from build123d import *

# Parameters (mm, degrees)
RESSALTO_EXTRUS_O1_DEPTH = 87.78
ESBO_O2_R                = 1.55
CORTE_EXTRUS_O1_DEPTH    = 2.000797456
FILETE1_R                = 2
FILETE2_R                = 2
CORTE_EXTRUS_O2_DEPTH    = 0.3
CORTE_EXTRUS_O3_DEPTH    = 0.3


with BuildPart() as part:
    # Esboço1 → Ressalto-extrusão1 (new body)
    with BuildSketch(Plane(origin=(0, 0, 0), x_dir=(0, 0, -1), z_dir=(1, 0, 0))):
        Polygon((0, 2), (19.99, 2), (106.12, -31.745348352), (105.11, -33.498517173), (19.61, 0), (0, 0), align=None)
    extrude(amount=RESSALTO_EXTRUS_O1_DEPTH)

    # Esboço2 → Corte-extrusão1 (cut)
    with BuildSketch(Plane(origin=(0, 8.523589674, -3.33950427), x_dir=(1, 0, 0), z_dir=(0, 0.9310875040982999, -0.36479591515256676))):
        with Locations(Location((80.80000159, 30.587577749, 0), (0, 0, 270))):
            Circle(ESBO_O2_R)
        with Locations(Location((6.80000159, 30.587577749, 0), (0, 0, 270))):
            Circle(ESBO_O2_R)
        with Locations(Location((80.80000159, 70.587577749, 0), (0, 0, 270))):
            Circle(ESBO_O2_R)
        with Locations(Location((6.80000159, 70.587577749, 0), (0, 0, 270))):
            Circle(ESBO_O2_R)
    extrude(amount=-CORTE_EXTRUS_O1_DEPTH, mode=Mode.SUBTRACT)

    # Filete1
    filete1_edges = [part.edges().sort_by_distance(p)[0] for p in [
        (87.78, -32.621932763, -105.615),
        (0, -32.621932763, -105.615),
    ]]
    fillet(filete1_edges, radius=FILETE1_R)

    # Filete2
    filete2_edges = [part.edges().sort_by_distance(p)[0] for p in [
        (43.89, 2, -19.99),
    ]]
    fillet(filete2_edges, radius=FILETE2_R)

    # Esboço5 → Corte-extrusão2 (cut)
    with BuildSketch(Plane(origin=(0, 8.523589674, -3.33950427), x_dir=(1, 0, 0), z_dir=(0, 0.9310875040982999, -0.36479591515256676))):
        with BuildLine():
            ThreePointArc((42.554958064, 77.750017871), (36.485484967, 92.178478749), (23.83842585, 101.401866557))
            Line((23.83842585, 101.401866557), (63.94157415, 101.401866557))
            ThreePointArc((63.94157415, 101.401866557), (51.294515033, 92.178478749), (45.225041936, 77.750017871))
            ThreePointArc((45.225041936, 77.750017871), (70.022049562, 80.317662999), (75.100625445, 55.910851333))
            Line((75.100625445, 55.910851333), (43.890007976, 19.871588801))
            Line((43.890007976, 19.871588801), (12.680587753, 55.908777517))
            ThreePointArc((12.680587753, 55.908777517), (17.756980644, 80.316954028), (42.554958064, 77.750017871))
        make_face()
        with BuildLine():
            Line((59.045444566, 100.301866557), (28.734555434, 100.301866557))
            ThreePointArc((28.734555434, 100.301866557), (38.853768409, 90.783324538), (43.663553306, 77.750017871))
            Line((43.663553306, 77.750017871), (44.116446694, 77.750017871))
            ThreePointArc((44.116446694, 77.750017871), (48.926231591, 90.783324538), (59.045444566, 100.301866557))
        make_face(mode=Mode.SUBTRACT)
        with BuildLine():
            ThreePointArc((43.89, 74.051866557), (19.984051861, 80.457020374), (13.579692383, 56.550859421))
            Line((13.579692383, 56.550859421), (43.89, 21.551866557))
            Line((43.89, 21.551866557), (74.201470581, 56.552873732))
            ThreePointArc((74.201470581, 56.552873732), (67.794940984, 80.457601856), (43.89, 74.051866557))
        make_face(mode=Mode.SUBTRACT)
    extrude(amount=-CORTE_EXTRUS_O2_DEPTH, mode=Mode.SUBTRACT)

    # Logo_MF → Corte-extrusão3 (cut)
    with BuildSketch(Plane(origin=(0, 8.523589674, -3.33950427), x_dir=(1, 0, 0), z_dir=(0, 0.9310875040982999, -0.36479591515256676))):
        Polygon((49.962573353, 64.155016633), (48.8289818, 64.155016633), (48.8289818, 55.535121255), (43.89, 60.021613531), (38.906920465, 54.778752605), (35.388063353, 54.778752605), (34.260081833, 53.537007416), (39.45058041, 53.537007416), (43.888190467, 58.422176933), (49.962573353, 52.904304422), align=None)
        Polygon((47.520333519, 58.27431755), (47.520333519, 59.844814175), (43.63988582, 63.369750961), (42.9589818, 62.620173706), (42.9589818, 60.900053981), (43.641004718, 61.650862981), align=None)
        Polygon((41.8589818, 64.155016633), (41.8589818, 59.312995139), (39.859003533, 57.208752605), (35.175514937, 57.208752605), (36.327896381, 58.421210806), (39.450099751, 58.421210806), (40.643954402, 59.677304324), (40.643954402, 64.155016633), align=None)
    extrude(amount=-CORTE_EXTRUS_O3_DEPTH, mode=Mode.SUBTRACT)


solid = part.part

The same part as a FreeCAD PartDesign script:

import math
import FreeCAD as App
import Part
import Sketcher
from FreeCAD import Vector


def edges_at(feature, points):
    """Names of the edges that pass closest to the given points."""
    edges = feature.Shape.Edges
    near = lambda p: min(range(len(edges)), key=lambda i: edges[i].distToShape(Part.Vertex(*p))[0])
    return sorted({f"Edge{near(p) + 1}" for p in points})

doc = App.newDocument("Part")
body = doc.addObject("PartDesign::Body", "Body")

sketch1 = body.newObject("Sketcher::SketchObject", "Sketch")
sketch1.AttachmentSupport = (doc.getObject("YZ_Plane"), [""])
sketch1.MapMode = "FlatFace"
sketch1.addGeometry([
    Part.LineSegment(Vector(2, -19.99, 0), Vector(2, 0, 0)),
    Part.LineSegment(Vector(2, 0, 0), Vector(0, 0, 0)),
    Part.LineSegment(Vector(0, 0, 0), Vector(0, -19.61, 0)),
    Part.LineSegment(Vector(0, -19.61, 0), Vector(-33.498517, -105.11, 0)),
    Part.LineSegment(Vector(-33.498517, -105.11, 0), Vector(-31.745348, -106.12, 0)),
    Part.LineSegment(Vector(-31.745348, -106.12, 0), Vector(2, -19.99, 0)),
], False)
sketch1.addConstraint([
    Sketcher.Constraint("Coincident", 0, 2, 1, 1),
    Sketcher.Constraint("Coincident", 1, 2, 2, 1),
    Sketcher.Constraint("Coincident", 2, 2, 3, 1),
    Sketcher.Constraint("Coincident", 3, 2, 4, 1),
    Sketcher.Constraint("Coincident", 4, 2, 5, 1),
    Sketcher.Constraint("Coincident", 5, 2, 0, 1),
    Sketcher.Constraint("Vertical", 0),
    Sketcher.Constraint("Horizontal", 1),
    Sketcher.Constraint("Vertical", 2),
    Sketcher.Constraint("Coincident", 1, 2, -1, 1),
    Sketcher.Constraint("Parallel", 3, 5),
    Sketcher.Constraint("DistanceX", 1, 2, 1, 1, 2.0),
    Sketcher.Constraint("DistanceY", 0, 1, 0, 2, 19.99),
    Sketcher.Constraint("DistanceY", 2, 2, 2, 1, 19.61),
    Sketcher.Constraint("DistanceY", 3, 2, 2, 2, 85.5),
    Sketcher.Constraint("DistanceY", 4, 2, -1, 1, 106.12),
    Sketcher.Constraint("Distance", 4, 2.02329),
])
pad1 = body.newObject("PartDesign::Pad", "Pad")
pad1.Profile = sketch1
pad1.Length = 87.78

sketch2 = body.newObject("Sketcher::SketchObject", "Sketch001")
sketch2.Placement = App.Placement(Vector(0, 8.52359, -3.339504), App.Rotation(Vector(1, 0, 0), Vector(0, -0.364795915, -0.931087504), Vector(0, 0.931087504, -0.364795915), "ZXY"))
sketch2.addGeometry([
    Part.Circle(Vector(80.8, 30.6, 0), Vector(0, 0, 1), 1.6),
    Part.Circle(Vector(6.8, 30.6, 0), Vector(0, 0, 1), 1.6),
    Part.Circle(Vector(80.8, 70.6, 0), Vector(0, 0, 1), 1.6),
    Part.Circle(Vector(6.8, 70.6, 0), Vector(0, 0, 1), 1.6),
], False)
sketch2.addConstraint([
    Sketcher.Constraint("Equal", 0, 1),
    Sketcher.Constraint("Equal", 1, 2),
    Sketcher.Constraint("Equal", 2, 3),
    Sketcher.Constraint("Horizontal", 0, 3, 1, 3),
    Sketcher.Constraint("Horizontal", 2, 3, 3, 3),
    Sketcher.Constraint("Vertical", 0, 3, 2, 3),
    Sketcher.Constraint("Vertical", 1, 3, 3, 3),
    Sketcher.Constraint("Diameter", 0, 3.1),
    Sketcher.Constraint("DistanceX", 1, 3, 0, 3, 74.0),
    Sketcher.Constraint("DistanceY", 0, 3, 2, 3, 40.0),
    Sketcher.Constraint("DistanceX", -1, 1, 0, 3, 80.800002),
    Sketcher.Constraint("DistanceY", -1, 1, 0, 3, 30.587578),
])
pocket1 = body.newObject("PartDesign::Pocket", "Pocket")
pocket1.Profile = sketch2
pocket1.Length = 2.000797
doc.recompute()

fillet = body.newObject("PartDesign::Fillet", "Fillet")
fillet.Base = (pocket1, edges_at(pocket1, [(87.78, -32.622, -105.615), (0, -32.622, -105.615)]))
fillet.Radius = 2
doc.recompute()

fillet2 = body.newObject("PartDesign::Fillet", "Fillet001")
fillet2.Base = (fillet, edges_at(fillet, [(43.89, 2, -19.99)]))
fillet2.Radius = 2

sketch3 = body.newObject("Sketcher::SketchObject", "Sketch002")
sketch3.Placement = App.Placement(Vector(0, 8.52359, -3.339504), App.Rotation(Vector(1, 0, 0), Vector(0, -0.364795915, -0.931087504), Vector(0, 0.931087504, -0.364795915), "ZXY"))
sketch3.addGeometry([
    Part.ArcOfCircle(Part.Circle(Vector(13.58, 74.05, 0), Vector(0, 0, 1), 29.21), math.radians(7), math.radians(69)),
    Part.ArcOfCircle(Part.Circle(Vector(28.73, 65.3, 0), Vector(0, 0, 1), 18.6), math.radians(42), math.radians(210)),
    Part.LineSegment(Vector(12.68, 55.91, 0), Vector(43.89, 19.87, 0)),
    Part.LineSegment(Vector(43.89, 19.87, 0), Vector(75.1, 55.91, 0)),
    Part.ArcOfCircle(Part.Circle(Vector(59.05, 65.3, 0), Vector(0, 0, 1), 18.6), math.radians(-30), math.radians(138)),
    Part.ArcOfCircle(Part.Circle(Vector(74.2, 74.05, 0), Vector(0, 0, 1), 29.21), math.radians(111), math.radians(173)),
    Part.LineSegment(Vector(63.94, 101.4, 0), Vector(23.84, 101.4, 0)),
    Part.ArcOfCircle(Part.Circle(Vector(59.05, 65.3, 0), Vector(0, 0, 1), 17.5), math.radians(-30), math.radians(150)),
    Part.LineSegment(Vector(74.2, 56.55, 0), Vector(43.89, 21.55, 0)),
    Part.LineSegment(Vector(43.89, 21.55, 0), Vector(13.58, 56.55, 0)),
    Part.ArcOfCircle(Part.Circle(Vector(28.73, 65.3, 0), Vector(0, 0, 1), 17.5), math.radians(30), math.radians(210)),
    Part.ArcOfCircle(Part.Circle(Vector(74.2, 74.05, 0), Vector(0, 0, 1), 30.31), math.radians(120), math.radians(173)),
    Part.LineSegment(Vector(44.12, 77.75, 0), Vector(43.66, 77.75, 0)),
    Part.ArcOfCircle(Part.Circle(Vector(13.58, 74.05, 0), Vector(0, 0, 1), 30.31), math.radians(7), math.radians(60)),
    Part.LineSegment(Vector(28.73, 100.3, 0), Vector(59.05, 100.3, 0)),
], False)
sketch3.addConstraint([
    Sketcher.Constraint("Coincident", 0, 1, 1, 1),
    Sketcher.Constraint("Coincident", 1, 2, 2, 1),
    Sketcher.Constraint("Coincident", 2, 2, 3, 1),
    Sketcher.Constraint("Coincident", 3, 2, 4, 1),
    Sketcher.Constraint("Coincident", 4, 2, 5, 2),
    Sketcher.Constraint("Coincident", 5, 1, 6, 1),
    Sketcher.Constraint("Coincident", 6, 2, 0, 2),
    Sketcher.Constraint("Coincident", 7, 1, 8, 1),
    Sketcher.Constraint("Coincident", 8, 2, 9, 1),
    Sketcher.Constraint("Coincident", 9, 2, 10, 2),
    Sketcher.Constraint("Coincident", 10, 1, 7, 2),
    Sketcher.Constraint("Coincident", 11, 2, 12, 1),
    Sketcher.Constraint("Coincident", 12, 2, 13, 1),
    Sketcher.Constraint("Coincident", 13, 2, 14, 1),
    Sketcher.Constraint("Coincident", 14, 2, 11, 1),
    Sketcher.Constraint("Horizontal", 6),
    Sketcher.Constraint("Horizontal", 12),
    Sketcher.Constraint("Horizontal", 14),
    Sketcher.Constraint("Coincident", 7, 3, 4, 3),
    Sketcher.Constraint("Coincident", 10, 3, 1, 3),
    Sketcher.Constraint("Coincident", 11, 3, 5, 3),
    Sketcher.Constraint("Coincident", 13, 3, 0, 3),
    Sketcher.Constraint("Equal", 1, 4),
    Sketcher.Constraint("Equal", 0, 5),
    Sketcher.Constraint("Equal", 7, 10),
    Sketcher.Constraint("Equal", 11, 13),
    Sketcher.Constraint("Parallel", 3, 8),
    Sketcher.Constraint("Parallel", 2, 9),
    Sketcher.Constraint("Horizontal", 1, 3, 4, 3),
    Sketcher.Constraint("Horizontal", 0, 3, 5, 3),
    Sketcher.Constraint("Horizontal", 0, 1, 4, 2),
    Sketcher.Constraint("Horizontal", 13, 3, 10, 1),
    Sketcher.Constraint("Horizontal", 4, 2, 11, 2),
    Sketcher.Constraint("Vertical", 8, 2, 10, 1),
    Sketcher.Constraint("Vertical", 10, 3, 13, 2),
    Sketcher.Constraint("Radius", 1, 18.6),
    Sketcher.Constraint("Radius", 7, 17.5),
    Sketcher.Constraint("DistanceY", 4, 3, 5, 1, 36.1),
    Sketcher.Constraint("DistanceY", 13, 2, 6, 2, 1.1),
    Sketcher.Constraint("DistanceX", -1, 1, 8, 2, 43.89),
    Sketcher.Constraint("Radius", 0, 29.210889),
    Sketcher.Constraint("Radius", 11, 30.310889),
    Sketcher.Constraint("DistanceY", 1, 3, 0, 3, 8.75),
    Sketcher.Constraint("DistanceY", 8, 2, 10, 3, 43.75),
    Sketcher.Constraint("Distance", 8, 46.30179),
    Sketcher.Constraint("DistanceY", -1, 1, 2, 2, 19.871589),
    Sketcher.Constraint("DistanceY", -1, 1, 3, 2, 55.910851),
    Sketcher.Constraint("DistanceY", -1, 1, 9, 2, 56.550859),
    Sketcher.Constraint("DistanceY", 1, 2, 13, 3, 18.143089),
])
pocket2 = body.newObject("PartDesign::Pocket", "Pocket001")
pocket2.Profile = sketch3
pocket2.Length = 0.3

sketch4 = body.newObject("Sketcher::SketchObject", "Sketch003")
sketch4.Placement = App.Placement(Vector(0, 8.52359, -3.339504), App.Rotation(Vector(1, 0, 0), Vector(0, -0.364795915, -0.931087504), Vector(0, 0.931087504, -0.364795915), "ZXY"))
sketch4.addGeometry([
    Part.LineSegment(Vector(49.962573, 64.155017, 0), Vector(48.828982, 64.155017, 0)),
    Part.LineSegment(Vector(48.828982, 64.155017, 0), Vector(48.828982, 55.535121, 0)),
    Part.LineSegment(Vector(48.828982, 55.535121, 0), Vector(43.89, 60.021614, 0)),
    Part.LineSegment(Vector(43.89, 60.021614, 0), Vector(38.90692, 54.778753, 0)),
    Part.LineSegment(Vector(38.90692, 54.778753, 0), Vector(35.388063, 54.778753, 0)),
    Part.LineSegment(Vector(35.388063, 54.778753, 0), Vector(34.260082, 53.537007, 0)),
    Part.LineSegment(Vector(34.260082, 53.537007, 0), Vector(39.45058, 53.537007, 0)),
    Part.LineSegment(Vector(39.45058, 53.537007, 0), Vector(43.88819, 58.422177, 0)),
    Part.LineSegment(Vector(43.88819, 58.422177, 0), Vector(49.962573, 52.904304, 0)),
    Part.LineSegment(Vector(49.962573, 52.904304, 0), Vector(49.962573, 64.155017, 0)),
    Part.LineSegment(Vector(47.520334, 58.274318, 0), Vector(47.520334, 59.844814, 0)),
    Part.LineSegment(Vector(47.520334, 59.844814, 0), Vector(43.639886, 63.369751, 0)),
    Part.LineSegment(Vector(43.639886, 63.369751, 0), Vector(42.958982, 62.620174, 0)),
    Part.LineSegment(Vector(42.958982, 62.620174, 0), Vector(42.958982, 60.900054, 0)),
    Part.LineSegment(Vector(42.958982, 60.900054, 0), Vector(43.641005, 61.650863, 0)),
    Part.LineSegment(Vector(43.641005, 61.650863, 0), Vector(47.520334, 58.274318, 0)),
    Part.LineSegment(Vector(41.858982, 59.312995, 0), Vector(41.858982, 64.155017, 0)),
    Part.LineSegment(Vector(41.858982, 64.155017, 0), Vector(40.643954, 64.155017, 0)),
    Part.LineSegment(Vector(40.643954, 64.155017, 0), Vector(40.643954, 59.677304, 0)),
    Part.LineSegment(Vector(40.643954, 59.677304, 0), Vector(39.4501, 58.421211, 0)),
    Part.LineSegment(Vector(39.4501, 58.421211, 0), Vector(36.327896, 58.421211, 0)),
    Part.LineSegment(Vector(36.327896, 58.421211, 0), Vector(35.175515, 57.208753, 0)),
    Part.LineSegment(Vector(35.175515, 57.208753, 0), Vector(39.859004, 57.208753, 0)),
    Part.LineSegment(Vector(39.859004, 57.208753, 0), Vector(41.858982, 59.312995, 0)),
], False)
sketch4.addConstraint([
    Sketcher.Constraint("Coincident", 0, 2, 1, 1),
    Sketcher.Constraint("Coincident", 1, 2, 2, 1),
    Sketcher.Constraint("Coincident", 2, 2, 3, 1),
    Sketcher.Constraint("Coincident", 3, 2, 4, 1),
    Sketcher.Constraint("Coincident", 4, 2, 5, 1),
    Sketcher.Constraint("Coincident", 5, 2, 6, 1),
    Sketcher.Constraint("Coincident", 6, 2, 7, 1),
    Sketcher.Constraint("Coincident", 7, 2, 8, 1),
    Sketcher.Constraint("Coincident", 8, 2, 9, 1),
    Sketcher.Constraint("Coincident", 9, 2, 0, 1),
    Sketcher.Constraint("Coincident", 10, 2, 11, 1),
    Sketcher.Constraint("Coincident", 11, 2, 12, 1),
    Sketcher.Constraint("Coincident", 12, 2, 13, 1),
    Sketcher.Constraint("Coincident", 13, 2, 14, 1),
    Sketcher.Constraint("Coincident", 14, 2, 15, 1),
    Sketcher.Constraint("Coincident", 15, 2, 10, 1),
    Sketcher.Constraint("Coincident", 16, 2, 17, 1),
    Sketcher.Constraint("Coincident", 17, 2, 18, 1),
    Sketcher.Constraint("Coincident", 18, 2, 19, 1),
    Sketcher.Constraint("Coincident", 19, 2, 20, 1),
    Sketcher.Constraint("Coincident", 20, 2, 21, 1),
    Sketcher.Constraint("Coincident", 21, 2, 22, 1),
    Sketcher.Constraint("Coincident", 22, 2, 23, 1),
    Sketcher.Constraint("Coincident", 23, 2, 16, 1),
    Sketcher.Constraint("Horizontal", 0),
    Sketcher.Constraint("Vertical", 1),
    Sketcher.Constraint("Horizontal", 4),
    Sketcher.Constraint("Horizontal", 6),
    Sketcher.Constraint("Vertical", 9),
    Sketcher.Constraint("Vertical", 10),
    Sketcher.Constraint("Vertical", 13),
    Sketcher.Constraint("Vertical", 16),
    Sketcher.Constraint("Horizontal", 17),
    Sketcher.Constraint("Vertical", 18),
    Sketcher.Constraint("Horizontal", 20),
    Sketcher.Constraint("Horizontal", 22),
    Sketcher.Constraint("DistanceX", 16, 2, 12, 2, 1.1),
    Sketcher.Constraint("DistanceX", -1, 1, 2, 2, 43.89),
    Sketcher.Constraint("DistanceX", 12, 2, 0, 2, 5.87),
    Sketcher.Constraint("DistanceY", 4, 2, 21, 2, 2.43),
    Sketcher.Constraint("DistanceX", 6, 1, 6, 2, 5.190499),
    Sketcher.Constraint("DistanceX", 0, 2, 0, 1, 1.133592),
    Sketcher.Constraint("DistanceX", 22, 1, 22, 2, 4.683489),
    Sketcher.Constraint("DistanceY", 13, 2, 13, 1, 1.72012),
    Sketcher.Constraint("DistanceY", 16, 1, 16, 2, 4.842021),
    Sketcher.Constraint("DistanceX", -1, 1, 19, 2, 39.4501),
    Sketcher.Constraint("DistanceX", 5, 2, 1, 2, 14.5689),
    Sketcher.Constraint("DistanceY", 10, 2, 2, 2, 0.176799),
    Sketcher.Constraint("Distance", 5, 1.67758),
    Sketcher.Constraint("Distance", 11, 5.242428),
    Sketcher.Constraint("Distance", 15, 5.142981),
    Sketcher.Constraint("Distance", 23, 2.903059),
    Sketcher.Constraint("DistanceX", 4, 2, 4, 1, 3.518857),
    Sketcher.Constraint("DistanceX", 17, 2, 17, 1, 1.215027),
    Sketcher.Constraint("DistanceX", 20, 2, 20, 1, 3.122203),
    Sketcher.Constraint("DistanceY", 1, 2, 1, 1, 8.619895),
    Sketcher.Constraint("DistanceY", 9, 1, 9, 2, 11.250712),
    Sketcher.Constraint("DistanceY", 10, 1, 10, 2, 1.570497),
    Sketcher.Constraint("DistanceY", 18, 2, 18, 1, 4.477712),
    Sketcher.Constraint("DistanceX", -1, 1, 0, 2, 48.828982),
    Sketcher.Constraint("DistanceY", -1, 1, 1, 2, 55.535121),
    Sketcher.Constraint("DistanceX", -1, 1, 3, 2, 38.90692),
    Sketcher.Constraint("DistanceX", -1, 1, 7, 2, 43.88819),
    Sketcher.Constraint("DistanceY", -1, 1, 11, 2, 63.369751),
    Sketcher.Constraint("DistanceY", -1, 1, 19, 2, 58.421211),
    Sketcher.Constraint("DistanceY", 3, 2, 2, 2, 5.242861),
    Sketcher.Constraint("DistanceY", 3, 2, 1, 2, 0.756369),
    Sketcher.Constraint("DistanceY", 6, 2, 7, 2, 4.88517),
    Sketcher.Constraint("DistanceX", 10, 2, 1, 2, 1.308648),
    Sketcher.Constraint("DistanceY", 2, 2, 12, 2, 2.59856),
    Sketcher.Constraint("DistanceY", 13, 2, 14, 2, 0.750809),
    Sketcher.Constraint("DistanceY", 18, 2, 13, 2, 1.22275),
])
pocket3 = body.newObject("PartDesign::Pocket", "Pocket002")
pocket3.Profile = sketch4
pocket3.Length = 0.3

doc.recompute()
